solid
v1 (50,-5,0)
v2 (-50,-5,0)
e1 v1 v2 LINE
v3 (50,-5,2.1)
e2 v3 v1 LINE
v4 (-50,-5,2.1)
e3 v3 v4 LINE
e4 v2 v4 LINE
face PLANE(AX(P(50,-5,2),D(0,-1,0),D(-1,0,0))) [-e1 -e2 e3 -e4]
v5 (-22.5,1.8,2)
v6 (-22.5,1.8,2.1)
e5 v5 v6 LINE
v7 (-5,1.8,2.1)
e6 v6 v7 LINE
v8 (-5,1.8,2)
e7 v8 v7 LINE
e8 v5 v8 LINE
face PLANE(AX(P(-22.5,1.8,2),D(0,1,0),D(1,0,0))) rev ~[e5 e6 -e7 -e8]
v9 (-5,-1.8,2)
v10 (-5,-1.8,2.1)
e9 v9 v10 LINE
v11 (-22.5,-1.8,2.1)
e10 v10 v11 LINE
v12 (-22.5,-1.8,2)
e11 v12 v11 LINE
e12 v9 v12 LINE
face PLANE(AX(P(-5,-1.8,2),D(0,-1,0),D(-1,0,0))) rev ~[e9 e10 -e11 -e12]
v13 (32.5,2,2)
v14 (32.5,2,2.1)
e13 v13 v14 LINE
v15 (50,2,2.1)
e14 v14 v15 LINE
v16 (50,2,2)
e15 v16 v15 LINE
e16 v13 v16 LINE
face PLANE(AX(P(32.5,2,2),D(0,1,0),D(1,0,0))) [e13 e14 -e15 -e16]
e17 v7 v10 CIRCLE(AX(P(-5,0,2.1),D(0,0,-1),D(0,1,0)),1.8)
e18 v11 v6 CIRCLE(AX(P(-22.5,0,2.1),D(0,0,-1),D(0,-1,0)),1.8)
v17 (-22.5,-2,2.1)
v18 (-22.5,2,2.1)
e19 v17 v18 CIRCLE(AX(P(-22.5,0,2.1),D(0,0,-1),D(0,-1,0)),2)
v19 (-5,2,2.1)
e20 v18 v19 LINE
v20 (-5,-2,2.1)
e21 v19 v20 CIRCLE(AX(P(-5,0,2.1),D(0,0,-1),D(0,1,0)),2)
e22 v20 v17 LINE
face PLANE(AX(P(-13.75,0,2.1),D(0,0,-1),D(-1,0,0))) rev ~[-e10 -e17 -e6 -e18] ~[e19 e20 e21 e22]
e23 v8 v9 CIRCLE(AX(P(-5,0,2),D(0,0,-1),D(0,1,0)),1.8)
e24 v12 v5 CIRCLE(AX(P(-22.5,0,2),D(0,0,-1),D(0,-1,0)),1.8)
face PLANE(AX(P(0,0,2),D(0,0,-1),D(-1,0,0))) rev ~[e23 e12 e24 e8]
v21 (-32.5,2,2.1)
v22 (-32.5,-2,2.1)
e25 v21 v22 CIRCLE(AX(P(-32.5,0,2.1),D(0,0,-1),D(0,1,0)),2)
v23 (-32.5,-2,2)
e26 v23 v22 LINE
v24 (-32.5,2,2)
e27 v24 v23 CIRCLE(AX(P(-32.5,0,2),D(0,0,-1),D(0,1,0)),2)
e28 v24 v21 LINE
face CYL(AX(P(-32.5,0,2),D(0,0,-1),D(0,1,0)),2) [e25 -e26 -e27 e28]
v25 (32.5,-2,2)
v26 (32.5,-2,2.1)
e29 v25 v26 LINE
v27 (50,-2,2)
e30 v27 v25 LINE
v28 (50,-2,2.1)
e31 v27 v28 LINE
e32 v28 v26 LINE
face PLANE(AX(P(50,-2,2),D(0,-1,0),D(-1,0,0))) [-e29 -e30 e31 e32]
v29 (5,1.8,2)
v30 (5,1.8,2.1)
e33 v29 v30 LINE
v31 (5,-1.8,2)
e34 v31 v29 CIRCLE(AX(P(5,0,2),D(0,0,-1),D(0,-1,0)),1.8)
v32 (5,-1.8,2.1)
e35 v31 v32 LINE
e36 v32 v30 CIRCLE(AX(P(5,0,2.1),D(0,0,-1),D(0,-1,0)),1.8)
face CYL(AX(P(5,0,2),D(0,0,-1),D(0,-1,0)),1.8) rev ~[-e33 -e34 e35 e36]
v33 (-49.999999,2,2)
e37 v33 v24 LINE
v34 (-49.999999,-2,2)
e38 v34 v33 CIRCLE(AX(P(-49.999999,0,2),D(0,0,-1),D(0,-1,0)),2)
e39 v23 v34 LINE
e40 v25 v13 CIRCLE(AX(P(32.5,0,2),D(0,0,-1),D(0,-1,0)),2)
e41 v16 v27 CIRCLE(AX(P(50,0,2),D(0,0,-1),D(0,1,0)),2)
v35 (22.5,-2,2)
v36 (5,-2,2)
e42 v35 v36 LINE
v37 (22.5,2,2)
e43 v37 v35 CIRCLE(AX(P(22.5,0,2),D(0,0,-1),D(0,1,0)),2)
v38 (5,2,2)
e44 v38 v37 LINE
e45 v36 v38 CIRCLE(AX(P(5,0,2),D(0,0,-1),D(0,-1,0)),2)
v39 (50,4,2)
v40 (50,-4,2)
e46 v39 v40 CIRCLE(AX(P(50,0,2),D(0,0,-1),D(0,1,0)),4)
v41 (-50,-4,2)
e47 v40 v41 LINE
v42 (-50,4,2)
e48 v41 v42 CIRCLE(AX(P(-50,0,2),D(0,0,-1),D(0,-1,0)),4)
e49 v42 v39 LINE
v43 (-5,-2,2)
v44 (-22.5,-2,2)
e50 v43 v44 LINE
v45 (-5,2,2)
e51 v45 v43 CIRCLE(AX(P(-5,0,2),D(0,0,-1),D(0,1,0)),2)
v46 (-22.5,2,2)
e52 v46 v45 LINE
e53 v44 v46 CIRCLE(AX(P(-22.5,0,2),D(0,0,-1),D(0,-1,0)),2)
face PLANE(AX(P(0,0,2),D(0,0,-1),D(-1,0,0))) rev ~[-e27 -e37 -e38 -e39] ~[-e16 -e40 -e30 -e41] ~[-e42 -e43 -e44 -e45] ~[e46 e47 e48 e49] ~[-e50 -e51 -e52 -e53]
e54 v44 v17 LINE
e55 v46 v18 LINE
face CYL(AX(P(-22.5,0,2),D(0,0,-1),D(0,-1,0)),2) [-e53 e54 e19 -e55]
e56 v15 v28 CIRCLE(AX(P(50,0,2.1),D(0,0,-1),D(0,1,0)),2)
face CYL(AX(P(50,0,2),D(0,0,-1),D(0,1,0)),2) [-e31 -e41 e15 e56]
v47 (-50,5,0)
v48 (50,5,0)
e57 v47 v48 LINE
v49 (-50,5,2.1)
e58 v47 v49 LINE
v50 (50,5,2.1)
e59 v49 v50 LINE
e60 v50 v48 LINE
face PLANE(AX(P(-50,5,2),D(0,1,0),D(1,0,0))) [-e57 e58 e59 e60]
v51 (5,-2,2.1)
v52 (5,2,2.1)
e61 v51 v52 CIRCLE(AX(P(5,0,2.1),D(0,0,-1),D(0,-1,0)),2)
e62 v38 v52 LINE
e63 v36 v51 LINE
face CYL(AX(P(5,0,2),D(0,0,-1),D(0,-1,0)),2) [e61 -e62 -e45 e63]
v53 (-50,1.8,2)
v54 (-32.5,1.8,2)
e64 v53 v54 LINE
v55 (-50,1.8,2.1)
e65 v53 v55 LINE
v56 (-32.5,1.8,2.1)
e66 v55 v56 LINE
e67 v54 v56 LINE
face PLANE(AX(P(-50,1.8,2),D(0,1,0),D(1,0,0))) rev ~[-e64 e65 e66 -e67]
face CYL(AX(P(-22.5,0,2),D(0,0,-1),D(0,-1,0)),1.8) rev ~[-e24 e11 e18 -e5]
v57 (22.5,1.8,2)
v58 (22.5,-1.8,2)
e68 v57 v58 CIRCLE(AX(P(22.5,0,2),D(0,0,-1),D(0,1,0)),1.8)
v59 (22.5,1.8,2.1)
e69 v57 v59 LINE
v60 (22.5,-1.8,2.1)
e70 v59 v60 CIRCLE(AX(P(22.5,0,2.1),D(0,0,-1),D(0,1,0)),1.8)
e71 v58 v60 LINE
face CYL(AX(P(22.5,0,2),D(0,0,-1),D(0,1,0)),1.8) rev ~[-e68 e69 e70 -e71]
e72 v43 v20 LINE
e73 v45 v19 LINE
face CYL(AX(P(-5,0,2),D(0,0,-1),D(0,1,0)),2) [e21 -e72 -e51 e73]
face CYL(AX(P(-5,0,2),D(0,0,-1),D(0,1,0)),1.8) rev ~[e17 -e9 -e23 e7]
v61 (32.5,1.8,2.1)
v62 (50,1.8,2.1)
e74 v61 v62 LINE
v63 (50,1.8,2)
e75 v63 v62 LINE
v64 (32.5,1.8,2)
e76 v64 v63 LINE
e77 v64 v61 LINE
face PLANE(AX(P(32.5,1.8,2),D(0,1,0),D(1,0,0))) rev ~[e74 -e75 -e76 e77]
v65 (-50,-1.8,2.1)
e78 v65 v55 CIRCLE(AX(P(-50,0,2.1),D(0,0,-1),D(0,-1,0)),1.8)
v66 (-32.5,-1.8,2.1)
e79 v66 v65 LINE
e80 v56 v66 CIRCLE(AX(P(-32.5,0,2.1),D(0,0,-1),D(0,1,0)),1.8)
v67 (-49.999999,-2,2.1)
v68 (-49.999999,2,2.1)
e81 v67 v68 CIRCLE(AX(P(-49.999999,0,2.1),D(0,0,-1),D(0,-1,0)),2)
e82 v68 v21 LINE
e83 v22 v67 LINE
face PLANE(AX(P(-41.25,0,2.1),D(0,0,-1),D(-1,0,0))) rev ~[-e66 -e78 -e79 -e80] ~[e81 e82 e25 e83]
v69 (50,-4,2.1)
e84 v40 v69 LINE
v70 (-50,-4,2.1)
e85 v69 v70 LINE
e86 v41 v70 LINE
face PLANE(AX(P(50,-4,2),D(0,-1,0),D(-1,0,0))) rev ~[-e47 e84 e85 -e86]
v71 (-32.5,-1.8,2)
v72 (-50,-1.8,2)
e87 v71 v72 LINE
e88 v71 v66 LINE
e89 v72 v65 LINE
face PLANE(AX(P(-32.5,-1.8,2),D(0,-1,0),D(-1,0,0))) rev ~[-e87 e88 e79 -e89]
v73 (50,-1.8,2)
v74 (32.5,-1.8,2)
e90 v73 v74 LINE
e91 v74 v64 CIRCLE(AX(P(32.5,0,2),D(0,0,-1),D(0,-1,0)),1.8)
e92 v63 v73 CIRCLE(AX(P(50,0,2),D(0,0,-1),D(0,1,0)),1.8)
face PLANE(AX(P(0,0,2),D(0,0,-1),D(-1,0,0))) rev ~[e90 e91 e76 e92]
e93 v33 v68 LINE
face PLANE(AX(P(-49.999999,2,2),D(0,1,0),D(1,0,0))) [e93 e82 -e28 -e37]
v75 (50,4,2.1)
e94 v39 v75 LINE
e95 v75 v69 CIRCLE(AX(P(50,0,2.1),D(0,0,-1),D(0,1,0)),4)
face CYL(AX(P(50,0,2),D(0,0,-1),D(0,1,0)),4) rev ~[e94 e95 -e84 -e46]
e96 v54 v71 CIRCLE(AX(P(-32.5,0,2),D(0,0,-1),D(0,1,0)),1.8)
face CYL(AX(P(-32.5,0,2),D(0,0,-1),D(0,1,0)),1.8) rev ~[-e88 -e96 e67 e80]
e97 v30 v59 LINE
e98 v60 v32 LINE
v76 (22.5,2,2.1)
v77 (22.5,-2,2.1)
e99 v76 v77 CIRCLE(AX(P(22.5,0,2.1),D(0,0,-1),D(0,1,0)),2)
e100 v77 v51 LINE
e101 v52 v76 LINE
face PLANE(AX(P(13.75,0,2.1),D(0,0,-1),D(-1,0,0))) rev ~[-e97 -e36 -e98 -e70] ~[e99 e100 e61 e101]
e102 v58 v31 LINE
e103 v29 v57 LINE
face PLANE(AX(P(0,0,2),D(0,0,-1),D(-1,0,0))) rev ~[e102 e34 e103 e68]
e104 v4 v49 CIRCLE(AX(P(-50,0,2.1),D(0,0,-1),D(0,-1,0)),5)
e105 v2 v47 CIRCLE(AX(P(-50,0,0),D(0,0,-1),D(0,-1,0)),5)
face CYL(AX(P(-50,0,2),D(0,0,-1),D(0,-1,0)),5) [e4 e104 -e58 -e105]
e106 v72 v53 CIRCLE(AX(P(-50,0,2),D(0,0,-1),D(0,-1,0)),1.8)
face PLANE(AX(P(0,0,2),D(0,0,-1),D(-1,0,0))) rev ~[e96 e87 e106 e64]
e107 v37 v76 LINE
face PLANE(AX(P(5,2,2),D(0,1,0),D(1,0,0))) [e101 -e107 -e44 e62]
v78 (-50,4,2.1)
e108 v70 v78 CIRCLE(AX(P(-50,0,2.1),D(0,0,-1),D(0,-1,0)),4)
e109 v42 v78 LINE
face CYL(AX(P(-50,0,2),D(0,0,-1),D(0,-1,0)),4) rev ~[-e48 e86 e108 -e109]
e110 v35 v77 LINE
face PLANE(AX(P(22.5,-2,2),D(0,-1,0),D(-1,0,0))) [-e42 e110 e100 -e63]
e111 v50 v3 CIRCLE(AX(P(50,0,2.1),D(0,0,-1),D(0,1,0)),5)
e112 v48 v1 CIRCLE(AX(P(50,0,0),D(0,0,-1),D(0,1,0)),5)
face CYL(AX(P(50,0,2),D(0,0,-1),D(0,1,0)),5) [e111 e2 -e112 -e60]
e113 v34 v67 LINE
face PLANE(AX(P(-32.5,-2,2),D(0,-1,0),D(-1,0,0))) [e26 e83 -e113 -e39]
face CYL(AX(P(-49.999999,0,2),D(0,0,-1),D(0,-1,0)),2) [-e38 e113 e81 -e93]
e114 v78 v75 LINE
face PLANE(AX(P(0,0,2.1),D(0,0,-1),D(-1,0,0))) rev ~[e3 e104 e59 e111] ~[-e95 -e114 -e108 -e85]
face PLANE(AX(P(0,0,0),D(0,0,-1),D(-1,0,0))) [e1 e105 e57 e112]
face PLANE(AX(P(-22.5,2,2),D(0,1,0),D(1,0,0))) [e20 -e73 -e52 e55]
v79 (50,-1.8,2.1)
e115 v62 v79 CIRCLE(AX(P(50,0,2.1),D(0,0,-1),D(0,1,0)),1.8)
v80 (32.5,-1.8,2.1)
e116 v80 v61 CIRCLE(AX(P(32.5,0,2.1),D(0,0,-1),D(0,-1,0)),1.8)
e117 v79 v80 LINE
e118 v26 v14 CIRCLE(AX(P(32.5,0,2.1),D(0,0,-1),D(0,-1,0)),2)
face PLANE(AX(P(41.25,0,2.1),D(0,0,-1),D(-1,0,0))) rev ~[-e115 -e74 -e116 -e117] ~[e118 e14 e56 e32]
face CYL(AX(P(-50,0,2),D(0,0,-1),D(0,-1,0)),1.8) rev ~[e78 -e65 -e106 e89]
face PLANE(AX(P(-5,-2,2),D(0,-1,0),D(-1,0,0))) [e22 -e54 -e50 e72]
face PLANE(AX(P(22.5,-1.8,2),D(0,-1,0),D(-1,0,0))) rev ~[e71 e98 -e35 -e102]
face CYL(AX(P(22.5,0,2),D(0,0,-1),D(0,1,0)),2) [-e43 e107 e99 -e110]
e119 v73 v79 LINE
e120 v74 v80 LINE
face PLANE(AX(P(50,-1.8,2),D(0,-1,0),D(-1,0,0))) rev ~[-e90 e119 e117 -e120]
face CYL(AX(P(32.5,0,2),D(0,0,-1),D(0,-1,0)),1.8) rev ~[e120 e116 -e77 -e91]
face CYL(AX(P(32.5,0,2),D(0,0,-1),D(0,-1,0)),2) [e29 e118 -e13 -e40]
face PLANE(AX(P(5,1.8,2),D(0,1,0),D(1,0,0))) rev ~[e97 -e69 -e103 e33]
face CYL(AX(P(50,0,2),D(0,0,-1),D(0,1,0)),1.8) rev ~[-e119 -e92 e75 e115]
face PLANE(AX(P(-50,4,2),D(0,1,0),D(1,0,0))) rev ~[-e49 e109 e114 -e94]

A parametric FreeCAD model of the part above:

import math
import FreeCAD as App
import Part
import Sketcher

V = App.Vector
Q = App.Units.Quantity

doc = App.newDocument("Part")
params = doc.addObject("Spreadsheet::Sheet", "Params")
for row, (alias, value) in enumerate([
    ("sketch1_radius", "5 mm"),
    ("sketch1_width", "100 mm"),
    ("pad1_length", "2 mm"),
    ("sketch2_radius", "5 mm"),
    ("sketch2_radius2", "4 mm"),
    ("sketch2_width", "100 mm"),
    ("pad2_length", "0.1 mm"),
    ("sketch3_radius", "2 mm"),
    ("sketch3_radius2", "1.8 mm"),
    ("sketch3_width", "17.5 mm"),
    ("pad3_length", "0.1 mm"),
], start=1):
    params.set(f"A{row}", alias)
    params.set(f"B{row}", "=" + value)
    params.setAlias(f"B{row}", alias)

body = doc.addObject("PartDesign::Body", "Body")

sketch1 = body.newObject("Sketcher::SketchObject", "Sketch")
sketch1.AttachmentSupport = (doc.getObject("XY_Plane"), [""])
sketch1.MapMode = "FlatFace"
sketch1.addGeometry([
    Part.LineSegment(V(50, 5, 0), V(-50, 5, 0)),
    Part.ArcOfCircle(Part.Circle(V(-50, 0, 0), V(0, 0, 1), 5), math.radians(90), math.radians(270)),
    Part.LineSegment(V(-50, -5, 0), V(50, -5, 0)),
    Part.ArcOfCircle(Part.Circle(V(50, 0, 0), V(0, 0, 1), 5), math.radians(-90), math.radians(90)),
], False)
sketch1.addConstraint([
    Sketcher.Constraint("Tangent", 0, 2, 1, 1),
    Sketcher.Constraint("Tangent", 1, 2, 2, 1),
    Sketcher.Constraint("Tangent", 2, 2, 3, 1),
    Sketcher.Constraint("Tangent", 3, 2, 0, 1),
    Sketcher.Constraint("Horizontal", 0),
    Sketcher.Constraint("Horizontal", 2),
    Sketcher.Constraint("Symmetric", 1, 3, 3, 3, -1, 1),
    Sketcher.Constraint("Radius", 1, Q("5 mm")),
    Sketcher.Constraint("DistanceX", 0, 2, 0, 1, Q("100 mm")),
])
sketch1.setExpression("Constraints[7]", "Params.sketch1_radius")
sketch1.setExpression("Constraints[8]", "Params.sketch1_width")
pad1 = body.newObject("PartDesign::Pad", "Pad")
pad1.Profile = sketch1
pad1.setExpression("Length", "Params.pad1_length")

sketch2 = body.newObject("Sketcher::SketchObject", "Sketch001")
sketch2.AttachmentSupport = (doc.getObject("XY_Plane"), [""])
sketch2.MapMode = "FlatFace"
sketch2.AttachmentOffset = App.Placement(V(0, 0, 2), App.Rotation())
sketch2.addGeometry([
    Part.LineSegment(V(50, 5, 0), V(-50, 5, 0)),
    Part.ArcOfCircle(Part.Circle(V(-50, 0, 0), V(0, 0, 1), 5), math.radians(90), math.radians(270)),
    Part.LineSegment(V(-50, -5, 0), V(50, -5, 0)),
    Part.ArcOfCircle(Part.Circle(V(50, 0, 0), V(0, 0, 1), 5), math.radians(-90), math.radians(90)),
    Part.LineSegment(V(-50, 4, 0), V(50, 4, 0)),
    Part.ArcOfCircle(Part.Circle(V(50, 0, 0), V(0, 0, 1), 4), math.radians(-90), math.radians(90)),
    Part.LineSegment(V(50, -4, 0), V(-50, -4, 0)),
    Part.ArcOfCircle(Part.Circle(V(-50, 0, 0), V(0, 0, 1), 4), math.radians(90), math.radians(270)),
], False)
sketch2.addConstraint([
    Sketcher.Constraint("Tangent", 0, 2, 1, 1),
    Sketcher.Constraint("Tangent", 1, 2, 2, 1),
    Sketcher.Constraint("Tangent", 2, 2, 3, 1),
    Sketcher.Constraint("Tangent", 3, 2, 0, 1),
    Sketcher.Constraint("Tangent", 4, 2, 5, 2),
    Sketcher.Constraint("Tangent", 5, 1, 6, 1),
    Sketcher.Constraint("Tangent", 6, 2, 7, 2),
    Sketcher.Constraint("Tangent", 7, 1, 4, 1),
    Sketcher.Constraint("Horizontal", 0),
    Sketcher.Constraint("Horizontal", 2),
    Sketcher.Constraint("Horizontal", 4),
    Sketcher.Constraint("Horizontal", 6),
    Sketcher.Constraint("Coincident", 5, 3, 3, 3),
    Sketcher.Constraint("Symmetric", 1, 3, 3, 3, -1, 1),
    Sketcher.Constraint("Vertical", 7, 3, 0, 2),
    Sketcher.Constraint("Radius", 1, Q("5 mm")),
    Sketcher.Constraint("Radius", 5, Q("4 mm")),
    Sketcher.Constraint("DistanceX", 0, 2, 0, 1, Q("100 mm")),
])
sketch2.setExpression("Constraints[15]", "Params.sketch2_radius")
sketch2.setExpression("Constraints[16]", "Params.sketch2_radius2")
sketch2.setExpression("Constraints[17]", "Params.sketch2_width")
pad2 = body.newObject("PartDesign::Pad", "Pad001")
pad2.Profile = sketch2
pad2.setExpression("Length", "Params.pad2_length")

sketch3 = body.newObject("Sketcher::SketchObject", "Sketch002")
sketch3.AttachmentSupport = (doc.getObject("XY_Plane"), [""])
sketch3.MapMode = "FlatFace"
sketch3.AttachmentOffset = App.Placement(V(0, 0, 2), App.Rotation())
sketch3.addGeometry([
    Part.LineSegment(V(-32.5, 2, 0), V(-49.999999, 2, 0)),
    Part.ArcOfCircle(Part.Circle(V(-49.999999, 0, 0), V(0, 0, 1), 2), math.radians(90), math.radians(270)),
    Part.LineSegment(V(-49.999999, -2, 0), V(-32.5, -2, 0)),
    Part.ArcOfCircle(Part.Circle(V(-32.5, 0, 0), V(0, 0, 1), 2), math.radians(-90), math.radians(90)),
    Part.LineSegment(V(-50, 1.8, 0), V(-32.5, 1.8, 0)),
    Part.ArcOfCircle(Part.Circle(V(-32.5, 0, 0), V(0, 0, 1), 1.8), math.radians(-90), math.radians(90)),
    Part.LineSegment(V(-32.5, -1.8, 0), V(-50, -1.8, 0)),
    Part.ArcOfCircle(Part.Circle(V(-50, 0, 0), V(0, 0, 1), 1.8), math.radians(90), math.radians(270)),
    Part.LineSegment(V(-5, 2, 0), V(-22.5, 2, 0)),
    Part.ArcOfCircle(Part.Circle(V(-22.5, 0, 0), V(0, 0, 1), 2), math.radians(90), math.radians(270)),
    Part.LineSegment(V(-22.5, -2, 0), V(-5, -2, 0)),
    Part.ArcOfCircle(Part.Circle(V(-5, 0, 0), V(0, 0, 1), 2), math.radians(-90), math.radians(90)),
    Part.LineSegment(V(-22.5, 1.8, 0), V(-5, 1.8, 0)),
    Part.ArcOfCircle(Part.Circle(V(-5, 0, 0), V(0, 0, 1), 1.8), math.radians(-90), math.radians(90)),
    Part.LineSegment(V(-5, -1.8, 0), V(-22.5, -1.8, 0)),
    Part.ArcOfCircle(Part.Circle(V(-22.5, 0, 0), V(0, 0, 1), 1.8), math.radians(90), math.radians(270)),
    Part.LineSegment(V(22.5, 2, 0), V(5, 2, 0)),
    Part.ArcOfCircle(Part.Circle(V(5, 0, 0), V(0, 0, 1), 2), math.radians(90), math.radians(270)),
    Part.LineSegment(V(5, -2, 0), V(22.5, -2, 0)),
    Part.ArcOfCircle(Part.Circle(V(22.5, 0, 0), V(0, 0, 1), 2), math.radians(-90), math.radians(90)),
    Part.LineSegment(V(5, 1.8, 0), V(22.5, 1.8, 0)),
    Part.ArcOfCircle(Part.Circle(V(22.5, 0, 0), V(0, 0, 1), 1.8), math.radians(-90), math.radians(90)),
    Part.LineSegment(V(22.5, -1.8, 0), V(5, -1.8, 0)),
    Part.ArcOfCircle(Part.Circle(V(5, 0, 0), V(0, 0, 1), 1.8), math.radians(90), math.radians(270)),
    Part.LineSegment(V(50, 2, 0), V(32.5, 2, 0)),
    Part.ArcOfCircle(Part.Circle(V(32.5, 0, 0), V(0, 0, 1), 2), math.radians(90), math.radians(270)),
    Part.LineSegment(V(32.5, -2, 0), V(50, -2, 0)),
    Part.ArcOfCircle(Part.Circle(V(50, 0, 0), V(0, 0, 1), 2), math.radians(-90), math.radians(90)),
    Part.LineSegment(V(32.5, 1.8, 0), V(50, 1.8, 0)),
    Part.ArcOfCircle(Part.Circle(V(50, 0, 0), V(0, 0, 1), 1.8), math.radians(-90), math.radians(90)),
    Part.LineSegment(V(50, -1.8, 0), V(32.5, -1.8, 0)),
    Part.ArcOfCircle(Part.Circle(V(32.5, 0, 0), V(0, 0, 1), 1.8), math.radians(90), math.radians(270)),
], False)
sketch3.addConstraint([
    Sketcher.Constraint("Tangent", 0, 2, 1, 1),
    Sketcher.Constraint("Tangent", 1, 2, 2, 1),
    Sketcher.Constraint("Tangent", 2, 2, 3, 1),
    Sketcher.Constraint("Tangent", 3, 2, 0, 1),
    Sketcher.Constraint("Tangent", 4, 2, 5, 2),
    Sketcher.Constraint("Tangent", 5, 1, 6, 1),
    Sketcher.Constraint("Tangent", 6, 2, 7, 2),
    Sketcher.Constraint("Tangent", 7, 1, 4, 1),
    Sketcher.Constraint("Tangent", 8, 2, 9, 1),
    Sketcher.Constraint("Tangent", 9, 2, 10, 1),
    Sketcher.Constraint("Tangent", 10, 2, 11, 1),
    Sketcher.Constraint("Tangent", 11, 2, 8, 1),
    Sketcher.Constraint("Tangent", 12, 2, 13, 2),
    Sketcher.Constraint("Tangent", 13, 1, 14, 1),
    Sketcher.Constraint("Tangent", 14, 2, 15, 2),
    Sketcher.Constraint("Tangent", 15, 1, 12, 1),
    Sketcher.Constraint("Tangent", 16, 2, 17, 1),
    Sketcher.Constraint("Tangent", 17, 2, 18, 1),
    Sketcher.Constraint("Tangent", 18, 2, 19, 1),
    Sketcher.Constraint("Tangent", 19, 2, 16, 1),
    Sketcher.Constraint("Tangent", 20, 2, 21, 2),
    Sketcher.Constraint("Tangent", 21, 1, 22, 1),
    Sketcher.Constraint("Tangent", 22, 2, 23, 2),
    Sketcher.Constraint("Tangent", 23, 1, 20, 1),
    Sketcher.Constraint("Tangent", 24, 2, 25, 1),
    Sketcher.Constraint("Tangent", 25, 2, 26, 1),
    Sketcher.Constraint("Tangent", 26, 2, 27, 1),
    Sketcher.Constraint("Tangent", 27, 2, 24, 1),
    Sketcher.Constraint("Tangent", 28, 2, 29, 2),
    Sketcher.Constraint("Tangent", 29, 1, 30, 1),
    Sketcher.Constraint("Tangent", 30, 2, 31, 2),
    Sketcher.Constraint("Tangent", 31, 1, 28, 1),
    Sketcher.Constraint("Horizontal", 0),
    Sketcher.Constraint("Horizontal", 2),
    Sketcher.Constraint("Horizontal", 4),
    Sketcher.Constraint("Horizontal", 6),
    Sketcher.Constraint("Horizontal", 8),
    Sketcher.Constraint("Horizontal", 10),
    Sketcher.Constraint("Horizontal", 12),
    Sketcher.Constraint("Horizontal", 14),
    Sketcher.Constraint("Horizontal", 16),
    Sketcher.Constraint("Horizontal", 18),
    Sketcher.Constraint("Horizontal", 20),
    Sketcher.Constraint("Horizontal", 22),
    Sketcher.Constraint("Horizontal", 24),
    Sketcher.Constraint("Horizontal", 26),
    Sketcher.Constraint("Horizontal", 28),
    Sketcher.Constraint("Horizontal", 30),
    Sketcher.Constraint("Coincident", 5, 3, 3, 3),
    Sketcher.Constraint("Coincident", 13, 3, 11, 3),
    Sketcher.Constraint("Coincident", 21, 3, 19, 3),
    Sketcher.Constraint("Coincident", 29, 3, 27, 3),
    Sketcher.Constraint("Equal", 3, 9),
    Sketcher.Constraint("Equal", 7, 13),
    Sketcher.Constraint("Equal", 11, 17),
    Sketcher.Constraint("Equal", 15, 21),
    Sketcher.Constraint("Equal", 19, 25),
    Sketcher.Constraint("Equal", 23, 29),
    Sketcher.Constraint("Symmetric", 11, 3, 17, 3, -1, 1),
    Sketcher.Constraint("Symmetric", 3, 3, 25, 3, -1, 1),
    Sketcher.Constraint("Symmetric", 9, 3, 19, 3, -2),
    Sketcher.Constraint("Symmetric", 1, 3, 27, 3, -2),
    Sketcher.Constraint("Vertical", 7, 3, 0, 2),
    Sketcher.Constraint("Vertical", 15, 3, 8, 2),
    Sketcher.Constraint("Vertical", 23, 3, 16, 2),
    Sketcher.Constraint("Vertical", 31, 3, 24, 2),
    Sketcher.Constraint("Equal", 6, 8),
    Sketcher.Constraint("Radius", 1, Q("2 mm")),
    Sketcher.Constraint("Radius", 5, Q("1.8 mm")),
    Sketcher.Constraint("DistanceX", 0, 2, 0, 1, Q("17.5 mm")),
    Sketcher.Constraint("DistanceX", 1, 3, -1, 1, Q("49.999999 mm")),
    Sketcher.Constraint("DistanceX", 11, 3, -1, 1, Q("5 mm")),
])
sketch3.setExpression("Constraints[67]", "Params.sketch3_radius")
sketch3.setExpression("Constraints[68]", "Params.sketch3_radius2")
sketch3.setExpression("Constraints[69]", "Params.sketch3_width")
pad3 = body.newObject("PartDesign::Pad", "Pad002")
pad3.Profile = sketch3
pad3.setExpression("Length", "Params.pad3_length")

doc.recompute()
